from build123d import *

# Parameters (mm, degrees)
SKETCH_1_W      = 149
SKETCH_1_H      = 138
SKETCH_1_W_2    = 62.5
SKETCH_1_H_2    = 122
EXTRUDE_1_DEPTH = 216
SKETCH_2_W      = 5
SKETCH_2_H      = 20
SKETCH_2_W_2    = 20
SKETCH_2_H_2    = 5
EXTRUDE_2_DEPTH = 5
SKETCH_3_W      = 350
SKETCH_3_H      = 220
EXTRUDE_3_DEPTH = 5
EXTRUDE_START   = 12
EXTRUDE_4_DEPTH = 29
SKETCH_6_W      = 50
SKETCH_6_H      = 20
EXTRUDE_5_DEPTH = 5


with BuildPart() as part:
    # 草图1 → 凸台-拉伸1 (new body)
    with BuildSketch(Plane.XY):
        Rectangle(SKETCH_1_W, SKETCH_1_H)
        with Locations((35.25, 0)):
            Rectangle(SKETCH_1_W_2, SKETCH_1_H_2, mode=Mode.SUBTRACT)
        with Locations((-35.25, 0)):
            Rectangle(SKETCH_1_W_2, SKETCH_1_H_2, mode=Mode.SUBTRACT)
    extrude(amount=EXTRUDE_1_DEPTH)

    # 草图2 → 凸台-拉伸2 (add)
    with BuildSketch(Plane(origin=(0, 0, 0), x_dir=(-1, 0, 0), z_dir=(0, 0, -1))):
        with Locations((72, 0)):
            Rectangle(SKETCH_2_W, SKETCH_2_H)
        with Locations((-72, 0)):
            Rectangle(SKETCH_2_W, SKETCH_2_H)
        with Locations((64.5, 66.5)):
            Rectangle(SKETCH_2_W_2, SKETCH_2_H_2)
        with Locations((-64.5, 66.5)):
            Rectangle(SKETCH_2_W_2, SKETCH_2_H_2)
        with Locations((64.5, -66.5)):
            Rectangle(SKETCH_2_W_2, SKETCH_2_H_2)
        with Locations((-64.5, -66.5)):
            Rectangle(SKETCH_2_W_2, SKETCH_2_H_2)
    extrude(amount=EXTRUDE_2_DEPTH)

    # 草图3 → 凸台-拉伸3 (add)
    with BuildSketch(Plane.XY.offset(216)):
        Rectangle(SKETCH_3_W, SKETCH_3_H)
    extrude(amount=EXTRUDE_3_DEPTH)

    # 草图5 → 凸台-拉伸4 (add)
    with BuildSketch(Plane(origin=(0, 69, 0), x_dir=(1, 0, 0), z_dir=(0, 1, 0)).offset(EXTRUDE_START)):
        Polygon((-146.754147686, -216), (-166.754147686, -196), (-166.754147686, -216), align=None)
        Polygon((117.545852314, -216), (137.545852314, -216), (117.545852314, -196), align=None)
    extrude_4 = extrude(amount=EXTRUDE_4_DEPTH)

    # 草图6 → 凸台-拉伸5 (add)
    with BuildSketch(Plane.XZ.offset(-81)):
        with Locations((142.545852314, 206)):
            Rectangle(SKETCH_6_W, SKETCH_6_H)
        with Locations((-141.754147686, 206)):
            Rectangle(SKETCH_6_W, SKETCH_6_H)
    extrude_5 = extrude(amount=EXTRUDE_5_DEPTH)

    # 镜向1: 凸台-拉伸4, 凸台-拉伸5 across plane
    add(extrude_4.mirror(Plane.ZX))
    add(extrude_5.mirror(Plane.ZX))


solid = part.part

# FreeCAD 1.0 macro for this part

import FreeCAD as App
import Part
import Sketcher
Q = App.Units.Quantity

doc = App.newDocument("Part")
body = doc.addObject("PartDesign::Body", "Body")

sketch1 = body.newObject("Sketcher::SketchObject", "Sketch")
sketch1.AttachmentSupport = (doc.getObject("XY_Plane"), [""])
sketch1.MapMode = "FlatFace"
sketch1.addGeometry(Part.LineSegment(App.Vector(-74, 69, 0), App.Vector(-74, -69, 0)), False)
sketch1.addGeometry(Part.LineSegment(App.Vector(-74, -69, 0), App.Vector(74, -69, 0)), False)
sketch1.addGeometry(Part.LineSegment(App.Vector(74, -69, 0), App.Vector(74, 69, 0)), False)
sketch1.addGeometry(Part.LineSegment(App.Vector(74, 69, 0), App.Vector(-74, 69, 0)), False)
sketch1.addGeometry(Part.LineSegment(App.Vector(-4, -61, 0), App.Vector(-66, -61, 0)), False)
sketch1.addGeometry(Part.LineSegment(App.Vector(-66, -61, 0), App.Vector(-66, 61, 0)), False)
sketch1.addGeometry(Part.LineSegment(App.Vector(-66, 61, 0), App.Vector(-4, 61, 0)), False)
sketch1.addGeometry(Part.LineSegment(App.Vector(-4, 61, 0), App.Vector(-4, -61, 0)), False)
sketch1.addGeometry(Part.LineSegment(App.Vector(66, -61, 0), App.Vector(4, -61, 0)), False)
sketch1.addGeometry(Part.LineSegment(App.Vector(4, -61, 0), App.Vector(4, 61, 0)), False)
sketch1.addGeometry(Part.LineSegment(App.Vector(4, 61, 0), App.Vector(66, 61, 0)), False)
sketch1.addGeometry(Part.LineSegment(App.Vector(66, 61, 0), App.Vector(66, -61, 0)), False)
sketch1.addConstraint(Sketcher.Constraint("Coincident", 0, 2, 1, 1))
sketch1.addConstraint(Sketcher.Constraint("Coincident", 1, 2, 2, 1))
sketch1.addConstraint(Sketcher.Constraint("Coincident", 2, 2, 3, 1))
sketch1.addConstraint(Sketcher.Constraint("Coincident", 3, 2, 0, 1))
sketch1.addConstraint(Sketcher.Constraint("Coincident", 4, 2, 5, 1))
sketch1.addConstraint(Sketcher.Constraint("Coincident", 5, 2, 6, 1))
sketch1.addConstraint(Sketcher.Constraint("Coincident", 6, 2, 7, 1))
sketch1.addConstraint(Sketcher.Constraint("Coincident", 7, 2, 4, 1))
sketch1.addConstraint(Sketcher.Constraint("Coincident", 8, 2, 9, 1))
sketch1.addConstraint(Sketcher.Constraint("Coincident", 9, 2, 10, 1))
sketch1.addConstraint(Sketcher.Constraint("Coincident", 10, 2, 11, 1))
sketch1.addConstraint(Sketcher.Constraint("Coincident", 11, 2, 8, 1))
sketch1.addConstraint(Sketcher.Constraint("Vertical", 0))
sketch1.addConstraint(Sketcher.Constraint("Horizontal", 1))
sketch1.addConstraint(Sketcher.Constraint("Vertical", 2))
sketch1.addConstraint(Sketcher.Constraint("Horizontal", 3))
sketch1.addConstraint(Sketcher.Constraint("Horizontal", 4))
sketch1.addConstraint(Sketcher.Constraint("Vertical", 5))
sketch1.addConstraint(Sketcher.Constraint("Horizontal", 6))
sketch1.addConstraint(Sketcher.Constraint("Vertical", 7))
sketch1.addConstraint(Sketcher.Constraint("Horizontal", 8))
sketch1.addConstraint(Sketcher.Constraint("Vertical", 9))
sketch1.addConstraint(Sketcher.Constraint("Horizontal", 10))
sketch1.addConstraint(Sketcher.Constraint("Vertical", 11))
sketch1.addConstraint(Sketcher.Constraint("Symmetric", 0, 2, 2, 2, -1, 1))
sketch1.addConstraint(Sketcher.Constraint("Symmetric", 6, 2, 8, 2, -1, 1))
sketch1.addConstraint(Sketcher.Constraint("Symmetric", 4, 2, 10, 2, -1, 1))
sketch1.addConstraint(Sketcher.Constraint("Horizontal", 7, 2, 8, 2))
sketch1.addConstraint(Sketcher.Constraint("DistanceX", 1, 1, 1, 2, Q("149 mm")))
sketch1.addConstraint(Sketcher.Constraint("DistanceY", 0, 2, 0, 1, Q("138 mm")))
sketch1.addConstraint(Sketcher.Constraint("DistanceY", 5, 1, 5, 2, Q("122 mm")))
sketch1.addConstraint(Sketcher.Constraint("DistanceX", 4, 2, 4, 1, Q("62.5 mm")))
sketch1.addConstraint(Sketcher.Constraint("DistanceX", 6, 2, -1, 1, Q("4 mm")))
pad1 = body.newObject("PartDesign::Pad", "Pad")
pad1.Profile = sketch1
pad1.Length = 216

sketch2 = body.newObject("Sketcher::SketchObject", "Sketch001")
sketch2.AttachmentSupport = (doc.getObject("XY_Plane"), [""])
sketch2.MapMode = "FlatFace"
sketch2.addGeometry(Part.LineSegment(App.Vector(-70, 10, 0), App.Vector(-70, -10, 0)), False)
sketch2.addGeometry(Part.LineSegment(App.Vector(-70, -10, 0), App.Vector(-74, -10, 0)), False)
sketch2.addGeometry(Part.LineSegment(App.Vector(-74, -10, 0), App.Vector(-74, 10, 0)), False)
sketch2.addGeometry(Part.LineSegment(App.Vector(-74, 10, 0), App.Vector(-70, 10, 0)), False)
sketch2.addGeometry(Part.LineSegment(App.Vector(74, 10, 0), App.Vector(74, -10, 0)), False)
sketch2.addGeometry(Part.LineSegment(App.Vector(74, -10, 0), App.Vector(70, -10, 0)), False)
sketch2.addGeometry(Part.LineSegment(App.Vector(70, -10, 0), App.Vector(70, 10, 0)), False)
sketch2.addGeometry(Part.LineSegment(App.Vector(70, 10, 0), App.Vector(74, 10, 0)), False)
sketch2.addGeometry(Part.LineSegment(App.Vector(-54, 69, 0), App.Vector(-54, 64, 0)), False)
sketch2.addGeometry(Part.LineSegment(App.Vector(-54, 64, 0), App.Vector(-74, 64, 0)), False)
sketch2.addGeometry(Part.LineSegment(App.Vector(-74, 64, 0), App.Vector(-74, 69, 0)), False)
sketch2.addGeometry(Part.LineSegment(App.Vector(-74, 69, 0), App.Vector(-54, 69, 0)), False)
sketch2.addGeometry(Part.LineSegment(App.Vector(74, 69, 0), App.Vector(74, 64, 0)), False)
sketch2.addGeometry(Part.LineSegment(App.Vector(74, 64, 0), App.Vector(54, 64, 0)), False)
sketch2.addGeometry(Part.LineSegment(App.Vector(54, 64, 0), App.Vector(54, 69, 0)), False)
sketch2.addGeometry(Part.LineSegment(App.Vector(54, 69, 0), App.Vector(74, 69, 0)), False)
sketch2.addGeometry(Part.LineSegment(App.Vector(-54, -64, 0), App.Vector(-54, -69, 0)), False)
sketch2.addGeometry(Part.LineSegment(App.Vector(-54, -69, 0), App.Vector(-74, -69, 0)), False)
sketch2.addGeometry(Part.LineSegment(App.Vector(-74, -69, 0), App.Vector(-74, -64, 0)), False)
sketch2.addGeometry(Part.LineSegment(App.Vector(-74, -64, 0), App.Vector(-54, -64, 0)), False)
sketch2.addGeometry(Part.LineSegment(App.Vector(74, -64, 0), App.Vector(74, -69, 0)), False)
sketch2.addGeometry(Part.LineSegment(App.Vector(74, -69, 0), App.Vector(54, -69, 0)), False)
sketch2.addGeometry(Part.LineSegment(App.Vector(54, -69, 0), App.Vector(54, -64, 0)), False)
sketch2.addGeometry(Part.LineSegment(App.Vector(54, -64, 0), App.Vector(74, -64, 0)), False)
sketch2.addConstraint(Sketcher.Constraint("Coincident", 0, 2, 1, 1))
sketch2.addConstraint(Sketcher.Constraint("Coincident", 1, 2, 2, 1))
sketch2.addConstraint(Sketcher.Constraint("Coincident", 2, 2, 3, 1))
sketch2.addConstraint(Sketcher.Constraint("Coincident", 3, 2, 0, 1))
sketch2.addConstraint(Sketcher.Constraint("Coincident", 4, 2, 5, 1))
sketch2.addConstraint(Sketcher.Constraint("Coincident", 5, 2, 6, 1))
sketch2.addConstraint(Sketcher.Constraint("Coincident", 6, 2, 7, 1))
sketch2.addConstraint(Sketcher.Constraint("Coincident", 7, 2, 4, 1))
sketch2.addConstraint(Sketcher.Constraint("Coincident", 8, 2, 9, 1))
sketch2.addConstraint(Sketcher.Constraint("Coincident", 9, 2, 10, 1))
sketch2.addConstraint(Sketcher.Constraint("Coincident", 10, 2, 11, 1))
sketch2.addConstraint(Sketcher.Constraint("Coincident", 11, 2, 8, 1))
sketch2.addConstraint(Sketcher.Constraint("Coincident", 12, 2, 13, 1))
sketch2.addConstraint(Sketcher.Constraint("Coincident", 13, 2, 14, 1))
sketch2.addConstraint(Sketcher.Constraint("Coincident", 14, 2, 15, 1))
sketch2.addConstraint(Sketcher.Constraint("Coincident", 15, 2, 12, 1))
sketch2.addConstraint(Sketcher.Constraint("Coincident", 16, 2, 17, 1))
sketch2.addConstraint(Sketcher.Constraint("Coincident", 17, 2, 18, 1))
sketch2.addConstraint(Sketcher.Constraint("Coincident", 18, 2, 19, 1))
sketch2.addConstraint(Sketcher.Constraint("Coincident", 19, 2, 16, 1))
sketch2.addConstraint(Sketcher.Constraint("Coincident", 20, 2, 21, 1))
sketch2.addConstraint(Sketcher.Constraint("Coincident", 21, 2, 22, 1))
sketch2.addConstraint(Sketcher.Constraint("Coincident", 22, 2, 23, 1))
sketch2.addConstraint(Sketcher.Constraint("Coincident", 23, 2, 20, 1))
sketch2.addConstraint(Sketcher.Constraint("Vertical", 0))
sketch2.addConstraint(Sketcher.Constraint("Horizontal", 1))
sketch2.addConstraint(Sketcher.Constraint("Vertical", 2))
sketch2.addConstraint(Sketcher.Constraint("Horizontal", 3))
sketch2.addConstraint(Sketcher.Constraint("Vertical", 4))
sketch2.addConstraint(Sketcher.Constraint("Horizontal", 5))
sketch2.addConstraint(Sketcher.Constraint("Vertical", 6))
sketch2.addConstraint(Sketcher.Constraint("Horizontal", 7))
sketch2.addConstraint(Sketcher.Constraint("Vertical", 8))
sketch2.addConstraint(Sketcher.Constraint("Horizontal", 9))
sketch2.addConstraint(Sketcher.Constraint("Vertical", 10))
sketch2.addConstraint(Sketcher.Constraint("Horizontal", 11))
sketch2.addConstraint(Sketcher.Constraint("Vertical", 12))
sketch2.addConstraint(Sketcher.Constraint("Horizontal", 13))
sketch2.addConstraint(Sketcher.Constraint("Vertical", 14))
sketch2.addConstraint(Sketcher.Constraint("Horizontal", 15))
sketch2.addConstraint(Sketcher.Constraint("Vertical", 16))
sketch2.addConstraint(Sketcher.Constraint("Horizontal", 17))
sketch2.addConstraint(Sketcher.Constraint("Vertical", 18))
sketch2.addConstraint(Sketcher.Constraint("Horizontal", 19))
sketch2.addConstraint(Sketcher.Constraint("Vertical", 20))
sketch2.addConstraint(Sketcher.Constraint("Horizontal", 21))
sketch2.addConstraint(Sketcher.Constraint("Vertical", 22))
sketch2.addConstraint(Sketcher.Constraint("Horizontal", 23))
sketch2.addConstraint(Sketcher.Constraint("Symmetric", 2, 2, 4, 2, -1, 1))
sketch2.addConstraint(Sketcher.Constraint("Symmetric", 0, 2, 6, 2, -1, 1))
sketch2.addConstraint(Sketcher.Constraint("Symmetric", 14, 2, 16, 2, -1, 1))
sketch2.addConstraint(Sketcher.Constraint("Symmetric", 12, 2, 18, 2, -1, 1))
sketch2.addConstraint(Sketcher.Constraint("Symmetric", 10, 2, 20, 2, -1, 1))
sketch2.addConstraint(Sketcher.Constraint("Symmetric", 8, 2, 22, 2, -1, 1))
sketch2.addConstraint(Sketcher.Constraint("Symmetric", 9, 2, 12, 2, -2))
sketch2.addConstraint(Sketcher.Constraint("Symmetric", 11, 2, 14, 2, -2))
sketch2.addConstraint(Sketcher.Constraint("Horizontal", 1, 2, 4, 2))
sketch2.addConstraint(Sketcher.Constraint("Vertical", 2, 2, 9, 2))
sketch2.addConstraint(Sketcher.Constraint("Equal", 23, 0))
sketch2.addConstraint(Sketcher.Constraint("Equal", 7, 8))
sketch2.addConstraint(Sketcher.Constraint("DistanceX", 1, 2, 1, 1, Q("5 mm")))
sketch2.addConstraint(Sketcher.Constraint("DistanceX", 9, 2, 9, 1, Q("20 mm")))
sketch2.addConstraint(Sketcher.Constraint("DistanceY", -1, 1, 8, 2, Q("64 mm")))
sketch2.addConstraint(Sketcher.Constraint("DistanceX", 0, 2, 4, 2, Q("144 mm")))
pad2 = body.newObject("PartDesign::Pad", "Pad001")
pad2.Profile = sketch2
pad2.Length = 5
pad2.Reversed = True

sketch3 = body.newObject("Sketcher::SketchObject", "Sketch002")
sketch3.AttachmentSupport = (doc.getObject("XY_Plane"), [""])
sketch3.MapMode = "FlatFace"
sketch3.AttachmentOffset = App.Placement(App.Vector(0, 0, 216), App.Rotation())
sketch3.addGeometry(Part.LineSegment(App.Vector(-175, 110, 0), App.Vector(-175, -110, 0)), False)
sketch3.addGeometry(Part.LineSegment(App.Vector(-175, -110, 0), App.Vector(175, -110, 0)), False)
sketch3.addGeometry(Part.LineSegment(App.Vector(175, -110, 0), App.Vector(175, 110, 0)), False)
sketch3.addGeometry(Part.LineSegment(App.Vector(175, 110, 0), App.Vector(-175, 110, 0)), False)
sketch3.addConstraint(Sketcher.Constraint("Coincident", 0, 2, 1, 1))
sketch3.addConstraint(Sketcher.Constraint("Coincident", 1, 2, 2, 1))
sketch3.addConstraint(Sketcher.Constraint("Coincident", 2, 2, 3, 1))
sketch3.addConstraint(Sketcher.Constraint("Coincident", 3, 2, 0, 1))
sketch3.addConstraint(Sketcher.Constraint("Vertical", 0))
sketch3.addConstraint(Sketcher.Constraint("Horizontal", 1))
sketch3.addConstraint(Sketcher.Constraint("Vertical", 2))
sketch3.addConstraint(Sketcher.Constraint("Horizontal", 3))
sketch3.addConstraint(Sketcher.Constraint("Symmetric", 0, 2, 2, 2, -1, 1))
sketch3.addConstraint(Sketcher.Constraint("DistanceX", 1, 1, 1, 2, Q("350 mm")))
sketch3.addConstraint(Sketcher.Constraint("DistanceY", 0, 2, 0, 1, Q("220 mm")))
pad3 = body.newObject("PartDesign::Pad", "Pad002")
pad3.Profile = sketch3
pad3.Length = 5

sketch4 = body.newObject("Sketcher::SketchObject", "Sketch003")
sketch4.AttachmentSupport = (doc.getObject("XZ_Plane"), [""])
sketch4.MapMode = "FlatFace"
sketch4.AttachmentOffset = App.Placement(App.Vector(0, 0, -81), App.Rotation())
sketch4.addGeometry(Part.LineSegment(App.Vector(-147, 216, 0), App.Vector(-167, 196, 0)), False)
sketch4.addGeometry(Part.LineSegment(App.Vector(-167, 196, 0), App.Vector(-167, 216, 0)), False)
sketch4.addGeometry(Part.LineSegment(App.Vector(-167, 216, 0), App.Vector(-147, 216, 0)), False)
sketch4.addGeometry(Part.LineSegment(App.Vector(118, 216, 0), App.Vector(138, 216, 0)), False)
sketch4.addGeometry(Part.LineSegment(App.Vector(138, 216, 0), App.Vector(118, 196, 0)), False)
sketch4.addGeometry(Part.LineSegment(App.Vector(118, 196, 0), App.Vector(118, 216, 0)), False)
sketch4.addConstraint(Sketcher.Constraint("Coincident", 0, 2, 1, 1))
sketch4.addConstraint(Sketcher.Constraint("Coincident", 1, 2, 2, 1))
sketch4.addConstraint(Sketcher.Constraint("Coincident", 2, 2, 0, 1))
sketch4.addConstraint(Sketcher.Constraint("Coincident", 3, 2, 4, 1))
sketch4.addConstraint(Sketcher.Constraint("Coincident", 4, 2, 5, 1))
sketch4.addConstraint(Sketcher.Constraint("Coincident", 5, 2, 3, 1))
sketch4.addConstraint(Sketcher.Constraint("Vertical", 1))
sketch4.addConstraint(Sketcher.Constraint("Horizontal", 2))
sketch4.addConstraint(Sketcher.Constraint("Horizontal", 3))
sketch4.addConstraint(Sketcher.Constraint("Vertical", 5))
sketch4.addConstraint(Sketcher.Constraint("Parallel", 0, 4))
sketch4.addConstraint(Sketcher.Constraint("Horizontal", 2, 2, 3, 2))
sketch4.addConstraint(Sketcher.Constraint("Horizontal", 0, 2, 4, 2))
sketch4.addConstraint(Sketcher.Constraint("Equal", 3, 1))
sketch4.addConstraint(Sketcher.Constraint("DistanceX", 2, 1, 2, 2, Q("20 mm")))
sketch4.addConstraint(Sketcher.Constraint("DistanceY", -1, 1, 0, 2, Q("196 mm")))
sketch4.addConstraint(Sketcher.Constraint("DistanceX", 2, 2, 3, 2, Q("284.3 mm")))
sketch4.addConstraint(Sketcher.Constraint("DistanceX", 0, 2, -1, 1, Q("166.754148 mm")))
pad4 = body.newObject("PartDesign::Pad", "Pad003")
pad4.Profile = sketch4
pad4.Length = 29
pad4.Reversed = True

sketch5 = body.newObject("Sketcher::SketchObject", "Sketch004")
sketch5.AttachmentSupport = (doc.getObject("XZ_Plane"), [""])
sketch5.MapMode = "FlatFace"
sketch5.AttachmentOffset = App.Placement(App.Vector(0, 0, -81), App.Rotation())
sketch5.addGeometry(Part.LineSegment(App.Vector(118, 216, 0), App.Vector(118, 196, 0)), False)
sketch5.addGeometry(Part.LineSegment(App.Vector(118, 196, 0), App.Vector(168, 196, 0)), False)
sketch5.addGeometry(Part.LineSegment(App.Vector(168, 196, 0), App.Vector(168, 216, 0)), False)
sketch5.addGeometry(Part.LineSegment(App.Vector(168, 216, 0), App.Vector(118, 216, 0)), False)
sketch5.addGeometry(Part.LineSegment(App.Vector(-167, 216, 0), App.Vector(-167, 196, 0)), False)
sketch5.addGeometry(Part.LineSegment(App.Vector(-167, 196, 0), App.Vector(-117, 196, 0)), False)
sketch5.addGeometry(Part.LineSegment(App.Vector(-117, 196, 0), App.Vector(-117, 216, 0)), False)
sketch5.addGeometry(Part.LineSegment(App.Vector(-117, 216, 0), App.Vector(-167, 216, 0)), False)
sketch5.addConstraint(Sketcher.Constraint("Coincident", 0, 2, 1, 1))
sketch5.addConstraint(Sketcher.Constraint("Coincident", 1, 2, 2, 1))
sketch5.addConstraint(Sketcher.Constraint("Coincident", 2, 2, 3, 1))
sketch5.addConstraint(Sketcher.Constraint("Coincident", 3, 2, 0, 1))
sketch5.addConstraint(Sketcher.Constraint("Coincident", 4, 2, 5, 1))
sketch5.addConstraint(Sketcher.Constraint("Coincident", 5, 2, 6, 1))
sketch5.addConstraint(Sketcher.Constraint("Coincident", 6, 2, 7, 1))
sketch5.addConstraint(Sketcher.Constraint("Coincident", 7, 2, 4, 1))
sketch5.addConstraint(Sketcher.Constraint("Vertical", 0))
sketch5.addConstraint(Sketcher.Constraint("Horizontal", 1))
sketch5.addConstraint(Sketcher.Constraint("Vertical", 2))
sketch5.addConstraint(Sketcher.Constraint("Horizontal", 3))
sketch5.addConstraint(Sketcher.Constraint("Vertical", 4))
sketch5.addConstraint(Sketcher.Constraint("Horizontal", 5))
sketch5.addConstraint(Sketcher.Constraint("Vertical", 6))
sketch5.addConstraint(Sketcher.Constraint("Horizontal", 7))
sketch5.addConstraint(Sketcher.Constraint("Horizontal", 1, 2, 4, 2))
sketch5.addConstraint(Sketcher.Constraint("Horizontal", 3, 2, 6, 2))
sketch5.addConstraint(Sketcher.Constraint("Equal", 3, 5))
sketch5.addConstraint(Sketcher.Constraint("DistanceX", 1, 1, 1, 2, Q("50 mm")))
sketch5.addConstraint(Sketcher.Constraint("DistanceY", 0, 2, 0, 1, Q("20 mm")))
sketch5.addConstraint(Sketcher.Constraint("DistanceY", -1, 1, 0, 2, Q("196 mm")))
sketch5.addConstraint(Sketcher.Constraint("DistanceX", 4, 2, 0, 2, Q("284.3 mm")))
sketch5.addConstraint(Sketcher.Constraint("DistanceX", -1, 1, 0, 2, Q("117.545852 mm")))
pad5 = body.newObject("PartDesign::Pad", "Pad004")
pad5.Profile = sketch5
pad5.Length = 5
doc.recompute()

mirrored = body.newObject("PartDesign::Mirrored", "Mirrored")
mirrored.Originals = [pad4, pad5]
mirrored.MirrorPlane = (doc.getObject("XZ_Plane"), [""])
body.Tip = mirrored

doc.recompute()
